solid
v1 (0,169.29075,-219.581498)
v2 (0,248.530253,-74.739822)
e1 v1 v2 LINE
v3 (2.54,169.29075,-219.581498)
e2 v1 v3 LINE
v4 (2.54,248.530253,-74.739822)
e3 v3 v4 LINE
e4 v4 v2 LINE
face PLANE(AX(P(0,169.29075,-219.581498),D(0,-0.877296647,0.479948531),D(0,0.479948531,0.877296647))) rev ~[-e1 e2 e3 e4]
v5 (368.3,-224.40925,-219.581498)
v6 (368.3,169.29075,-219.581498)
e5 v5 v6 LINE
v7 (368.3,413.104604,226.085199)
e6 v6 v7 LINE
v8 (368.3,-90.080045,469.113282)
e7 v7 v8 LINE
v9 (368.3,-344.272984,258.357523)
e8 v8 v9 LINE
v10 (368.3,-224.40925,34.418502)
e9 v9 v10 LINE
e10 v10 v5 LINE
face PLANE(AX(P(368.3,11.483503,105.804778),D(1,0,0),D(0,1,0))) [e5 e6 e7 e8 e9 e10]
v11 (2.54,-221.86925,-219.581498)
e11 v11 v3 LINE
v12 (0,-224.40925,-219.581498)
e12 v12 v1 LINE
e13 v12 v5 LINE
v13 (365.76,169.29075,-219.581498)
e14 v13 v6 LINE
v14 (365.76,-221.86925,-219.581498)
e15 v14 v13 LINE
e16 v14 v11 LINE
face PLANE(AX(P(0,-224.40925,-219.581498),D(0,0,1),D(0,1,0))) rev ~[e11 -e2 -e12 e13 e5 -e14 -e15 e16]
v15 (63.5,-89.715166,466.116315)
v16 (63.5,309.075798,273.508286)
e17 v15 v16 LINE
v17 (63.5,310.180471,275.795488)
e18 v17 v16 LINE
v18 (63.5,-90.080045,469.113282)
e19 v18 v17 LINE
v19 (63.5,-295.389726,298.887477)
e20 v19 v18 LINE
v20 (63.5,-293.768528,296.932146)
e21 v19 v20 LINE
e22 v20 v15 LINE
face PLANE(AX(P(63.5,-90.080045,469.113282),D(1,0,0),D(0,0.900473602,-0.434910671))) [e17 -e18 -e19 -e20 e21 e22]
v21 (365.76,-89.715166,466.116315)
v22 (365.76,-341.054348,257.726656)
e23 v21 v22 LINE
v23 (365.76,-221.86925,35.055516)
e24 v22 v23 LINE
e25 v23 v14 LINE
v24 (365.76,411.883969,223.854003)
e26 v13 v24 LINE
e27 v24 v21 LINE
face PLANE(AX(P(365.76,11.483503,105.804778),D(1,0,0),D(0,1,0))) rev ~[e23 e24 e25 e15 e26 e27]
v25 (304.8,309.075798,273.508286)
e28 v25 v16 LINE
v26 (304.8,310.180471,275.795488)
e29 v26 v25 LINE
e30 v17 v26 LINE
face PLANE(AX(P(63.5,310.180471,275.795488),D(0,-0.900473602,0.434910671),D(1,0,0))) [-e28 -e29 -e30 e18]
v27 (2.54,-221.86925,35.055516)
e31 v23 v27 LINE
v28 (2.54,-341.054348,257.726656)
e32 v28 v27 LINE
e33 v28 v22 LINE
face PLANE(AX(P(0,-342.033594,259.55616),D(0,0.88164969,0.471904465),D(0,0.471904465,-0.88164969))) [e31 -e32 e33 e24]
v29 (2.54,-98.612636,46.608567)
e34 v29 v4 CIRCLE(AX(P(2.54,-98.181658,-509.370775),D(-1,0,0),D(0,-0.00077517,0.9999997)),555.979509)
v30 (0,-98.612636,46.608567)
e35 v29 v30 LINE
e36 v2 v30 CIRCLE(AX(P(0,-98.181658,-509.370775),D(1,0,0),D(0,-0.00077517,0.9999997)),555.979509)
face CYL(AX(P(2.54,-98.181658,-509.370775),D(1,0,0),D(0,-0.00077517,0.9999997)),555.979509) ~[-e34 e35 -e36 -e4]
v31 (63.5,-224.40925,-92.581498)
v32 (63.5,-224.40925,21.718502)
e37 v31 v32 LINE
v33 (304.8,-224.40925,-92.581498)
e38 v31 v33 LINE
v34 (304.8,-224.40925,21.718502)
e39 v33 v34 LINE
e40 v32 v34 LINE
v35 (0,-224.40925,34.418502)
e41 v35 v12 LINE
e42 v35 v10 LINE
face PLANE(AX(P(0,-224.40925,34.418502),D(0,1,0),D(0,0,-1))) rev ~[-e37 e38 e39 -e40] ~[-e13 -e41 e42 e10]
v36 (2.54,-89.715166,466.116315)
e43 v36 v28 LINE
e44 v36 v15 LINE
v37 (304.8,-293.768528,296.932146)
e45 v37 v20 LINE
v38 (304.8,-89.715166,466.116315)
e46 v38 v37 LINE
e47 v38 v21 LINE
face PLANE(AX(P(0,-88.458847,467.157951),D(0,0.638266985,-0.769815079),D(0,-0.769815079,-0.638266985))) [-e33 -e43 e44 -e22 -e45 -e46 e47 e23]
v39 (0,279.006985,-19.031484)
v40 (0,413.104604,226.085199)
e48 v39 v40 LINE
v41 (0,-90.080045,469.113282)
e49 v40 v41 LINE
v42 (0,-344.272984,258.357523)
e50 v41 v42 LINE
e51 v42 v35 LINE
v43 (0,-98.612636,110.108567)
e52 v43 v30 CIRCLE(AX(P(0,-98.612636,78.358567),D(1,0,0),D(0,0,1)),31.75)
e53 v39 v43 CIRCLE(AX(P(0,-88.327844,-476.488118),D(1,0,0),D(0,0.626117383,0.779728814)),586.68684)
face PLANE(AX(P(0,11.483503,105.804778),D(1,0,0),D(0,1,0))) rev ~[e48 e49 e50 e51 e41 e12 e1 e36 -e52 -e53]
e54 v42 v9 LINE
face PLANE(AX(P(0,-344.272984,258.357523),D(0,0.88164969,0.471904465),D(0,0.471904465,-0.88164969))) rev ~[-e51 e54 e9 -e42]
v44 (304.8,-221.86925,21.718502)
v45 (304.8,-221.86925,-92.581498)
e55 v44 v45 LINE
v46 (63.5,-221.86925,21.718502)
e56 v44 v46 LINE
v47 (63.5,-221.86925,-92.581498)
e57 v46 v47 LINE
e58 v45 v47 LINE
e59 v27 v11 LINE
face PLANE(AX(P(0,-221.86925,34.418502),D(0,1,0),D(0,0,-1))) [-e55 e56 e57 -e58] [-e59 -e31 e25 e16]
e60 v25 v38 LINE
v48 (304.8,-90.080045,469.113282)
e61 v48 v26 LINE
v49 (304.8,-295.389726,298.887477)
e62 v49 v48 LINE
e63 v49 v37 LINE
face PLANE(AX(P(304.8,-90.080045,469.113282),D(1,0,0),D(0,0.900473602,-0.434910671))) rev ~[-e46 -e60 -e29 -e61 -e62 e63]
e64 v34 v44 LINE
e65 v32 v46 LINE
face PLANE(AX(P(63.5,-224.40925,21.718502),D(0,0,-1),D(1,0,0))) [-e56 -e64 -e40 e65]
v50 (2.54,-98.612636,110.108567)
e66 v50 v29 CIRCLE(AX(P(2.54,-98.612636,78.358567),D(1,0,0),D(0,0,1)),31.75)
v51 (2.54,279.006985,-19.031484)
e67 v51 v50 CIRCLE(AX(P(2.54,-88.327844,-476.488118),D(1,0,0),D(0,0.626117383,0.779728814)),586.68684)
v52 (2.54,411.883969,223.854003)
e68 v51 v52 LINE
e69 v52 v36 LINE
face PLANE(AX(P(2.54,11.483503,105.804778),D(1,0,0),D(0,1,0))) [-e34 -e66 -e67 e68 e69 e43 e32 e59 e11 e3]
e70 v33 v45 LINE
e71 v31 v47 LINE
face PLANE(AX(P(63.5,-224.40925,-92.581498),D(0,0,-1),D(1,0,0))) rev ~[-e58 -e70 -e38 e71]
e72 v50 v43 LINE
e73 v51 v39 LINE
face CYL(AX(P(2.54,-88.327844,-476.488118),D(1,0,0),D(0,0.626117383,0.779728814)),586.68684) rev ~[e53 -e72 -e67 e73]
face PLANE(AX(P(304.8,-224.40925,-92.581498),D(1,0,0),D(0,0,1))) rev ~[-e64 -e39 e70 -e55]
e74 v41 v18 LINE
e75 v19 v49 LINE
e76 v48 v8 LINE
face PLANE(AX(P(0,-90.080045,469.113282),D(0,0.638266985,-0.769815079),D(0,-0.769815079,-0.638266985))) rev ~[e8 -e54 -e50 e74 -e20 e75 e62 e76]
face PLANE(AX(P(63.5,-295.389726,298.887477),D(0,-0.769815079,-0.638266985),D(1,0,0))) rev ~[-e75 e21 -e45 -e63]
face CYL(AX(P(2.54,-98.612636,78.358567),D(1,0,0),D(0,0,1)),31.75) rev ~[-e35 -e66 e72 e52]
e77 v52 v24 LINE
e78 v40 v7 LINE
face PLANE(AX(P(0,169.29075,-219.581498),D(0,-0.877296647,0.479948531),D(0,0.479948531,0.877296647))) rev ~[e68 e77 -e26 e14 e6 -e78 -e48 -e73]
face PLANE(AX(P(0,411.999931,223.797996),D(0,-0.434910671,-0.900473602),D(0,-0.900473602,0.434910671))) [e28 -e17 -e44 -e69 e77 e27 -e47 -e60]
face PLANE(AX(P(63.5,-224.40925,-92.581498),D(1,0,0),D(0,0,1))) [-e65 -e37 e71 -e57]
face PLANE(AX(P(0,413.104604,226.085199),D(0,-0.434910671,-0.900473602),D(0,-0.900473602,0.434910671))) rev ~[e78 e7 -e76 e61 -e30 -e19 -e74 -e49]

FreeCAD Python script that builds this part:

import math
import FreeCAD as App
import Part
import Sketcher

V = App.Vector
Q = App.Units.Quantity


def faces_at(feature, points):
    """Names of the faces that lie closest to the given points."""
    faces = feature.Shape.Faces
    near = lambda p: min(range(len(faces)), key=lambda i: faces[i].distToShape(Part.Vertex(*p))[0])
    return sorted({f"Face{near(p) + 1}" for p in points})


def add_polygon(sketch, points):
    """Adds a closed chain of lines whose ends are joined by coincident constraints."""
    first, n = sketch.GeometryCount, len(points)
    for a, b in zip(points, points[1:] + points[:1]):
        sketch.addGeometry(Part.LineSegment(App.Vector(*a, 0), App.Vector(*b, 0)), False)
    for i in range(n):
        sketch.addConstraint(Sketcher.Constraint("Coincident", first + i, 2, first + (i + 1) % n, 1))

doc = App.newDocument("Part")
body = doc.addObject("PartDesign::Body", "Body")

# Sketch on YZ plane
sketch1 = body.newObject("Sketcher::SketchObject", "Sketch")
sketch1.AttachmentSupport = (doc.getObject("YZ_Plane"), [""])
sketch1.MapMode = "FlatFace"
add_polygon(sketch1, [(-224, -220), (169, -220), (413, 226), (-90, 469), (-344, 258), (-224, 34)])  # lines 0-5
sketch1.addConstraint([
    Sketcher.Constraint("Horizontal", 0),
    Sketcher.Constraint("Vertical", 5),
    Sketcher.Constraint("DistanceY", 5, 2, 5, 1, Q("10 in")),
    Sketcher.Constraint("Distance", 1, Q("20 in")),
    Sketcher.Constraint("Distance", 2, Q("22 in")),
    Sketcher.Constraint("Distance", 3, Q("13 in")),
    Sketcher.Constraint("Distance", 4, Q("10 in")),
    Sketcher.Constraint("DistanceX", 0, 1, 0, 2, Q("15.5 in")),
    Sketcher.Constraint("DistanceY", 0, 2, -1, 1, Q("219.581498 mm")),
    Sketcher.Constraint("DistanceY", -1, 1, 1, 2, Q("226.085199 mm")),
    Sketcher.Constraint("DistanceX", -1, 1, 0, 2, Q("169.29075 mm")),
    Sketcher.Constraint("DistanceY", -1, 1, 2, 2, Q("469.113282 mm")),
])
pad1 = body.newObject("PartDesign::Pad", "Pad")
pad1.Profile = sketch1
pad1.Length = Q("14.5 in")
doc.recompute()

thickness = body.newObject("PartDesign::Thickness", "Thickness")
thickness.Base = (pad1, faces_at(pad1, [(184.15, 291.198, 3.252), (184.15, -27.559, -219.581)]))
thickness.Value = Q("0.1 in")
thickness.Reversed = True
thickness.Join = "Intersection"

# Sketch on an angled plane
sketch2 = body.newObject("Sketcher::SketchObject", "Sketch001")
sketch2.Placement = App.Placement(V(0, 166.678364, 345.104125), App.Rotation(V(1, 0, 0), V(0, 0.900473602, -0.434910671), V(0, 0.434910671, 0.900473602), "ZXY"))
add_polygon(sketch2, [(64, 159), (64, -285), (305, -285), (305, 159)])  # lines 0-3
sketch2.addConstraint([
    Sketcher.Constraint("Vertical", 0),
    Sketcher.Constraint("Horizontal", 1),
    Sketcher.Constraint("Vertical", 2),
    Sketcher.Constraint("Horizontal", 3),
    Sketcher.Constraint("DistanceX", 1, 1, 1, 2, Q("9.5 in")),
    Sketcher.Constraint("DistanceY", 0, 2, 0, 1, Q("17.5 in")),
    Sketcher.Constraint("DistanceX", -1, 1, 1, 2, Q("12 in")),
    Sketcher.Constraint("DistanceY", 0, 2, -1, 1, Q("285.137074 mm")),
])
pocket1 = body.newObject("PartDesign::Pocket", "Pocket")
pocket1.Profile = sketch2
pocket1.Length = Q("1 in")

# Sketch on an angled plane
sketch3 = body.newObject("Sketcher::SketchObject", "Sketch002")
sketch3.Placement = App.Placement(V(0, -267.194897, 322.264297), App.Rotation(V(1, 0, 0), V(0, 0.769815079, 0.638266985), V(0, -0.638266985, 0.769815079), "ZXY"))
add_polygon(sketch3, [(64, 230), (64, -37), (305, -37), (305, 230)])  # lines 0-3
sketch3.addConstraint([
    Sketcher.Constraint("Vertical", 0),
    Sketcher.Constraint("Horizontal", 1),
    Sketcher.Constraint("Vertical", 2),
    Sketcher.Constraint("Horizontal", 3),
    Sketcher.Constraint("DistanceX", 1, 1, 1, 2, Q("9.5 in")),
    Sketcher.Constraint("DistanceY", 0, 2, 0, 1, Q("10.5 in")),
    Sketcher.Constraint("DistanceX", -1, 1, 1, 2, Q("12 in")),
    Sketcher.Constraint("DistanceY", 0, 2, -1, 1, Q("36.625457 mm")),
])
pocket2 = body.newObject("PartDesign::Pocket", "Pocket001")
pocket2.Profile = sketch3
pocket2.Length = Q("1 in")

# Sketch on XZ plane
sketch4 = body.newObject("Sketcher::SketchObject", "Sketch003")
sketch4.AttachmentSupport = (doc.getObject("XZ_Plane"), [""])
sketch4.MapMode = "FlatFace"
sketch4.AttachmentOffset = App.Placement(V(0, 0, 224.40925), App.Rotation())
add_polygon(sketch4, [(64, 22), (64, -93), (305, -93), (305, 22)])  # lines 0-3
sketch4.addConstraint([
    Sketcher.Constraint("Vertical", 0),
    Sketcher.Constraint("Horizontal", 1),
    Sketcher.Constraint("Vertical", 2),
    Sketcher.Constraint("Horizontal", 3),
    Sketcher.Constraint("DistanceX", 1, 1, 1, 2, Q("9.5 in")),
    Sketcher.Constraint("DistanceY", 0, 2, 0, 1, Q("4.5 in")),
    Sketcher.Constraint("DistanceX", -1, 1, 1, 2, Q("12 in")),
    Sketcher.Constraint("DistanceY", 0, 2, -1, 1, Q("92.581498 mm")),
])
pocket3 = body.newObject("PartDesign::Pocket", "Pocket002")
pocket3.Profile = sketch4
pocket3.Length = Q("1 in")

# Sketch on YZ plane
sketch5 = body.newObject("Sketcher::SketchObject", "Sketch004")
sketch5.AttachmentSupport = (doc.getObject("YZ_Plane"), [""])
sketch5.MapMode = "FlatFace"
sketch5.AttachmentOffset = App.Placement(V(0, 0, 0.1 * 25.4), App.Rotation())
sketch5.addGeometry([
    Part.ArcOfCircle(Part.Circle(V(-98, -509, 0), V(0, 0, 1), 556), math.radians(51), math.radians(90)),
    Part.LineSegment(V(249, -75, 0), V(279, -19, 0)),
    Part.ArcOfCircle(Part.Circle(V(-88, -476, 0), V(0, 0, 1), 587), math.radians(51), math.radians(91)),
    Part.ArcOfCircle(Part.Circle(V(-99, 78, 0), V(0, 0, 1), 32), math.radians(90), math.radians(270)),
], False)
sketch5.addConstraint([
    Sketcher.Constraint("Coincident", 0, 1, 1, 1),
    Sketcher.Constraint("Coincident", 1, 2, 2, 1),
    Sketcher.Constraint("Coincident", 2, 2, 3, 1),
    Sketcher.Constraint("Coincident", 3, 2, 0, 2),
    Sketcher.Constraint("Vertical", 3, 3, 2, 2),
    Sketcher.Constraint("Vertical", 2, 2, 3, 2),
    Sketcher.Constraint("Radius", 3, Q("1.25 in")),
    Sketcher.Constraint("Distance", 1, Q("2.5 in")),
    Sketcher.Constraint("Radius", 0, Q("555.979509 mm")),
    Sketcher.Constraint("Radius", 2, Q("586.68684 mm")),
    Sketcher.Constraint("DistanceY", 2, 3, -1, 1, Q("476.488118 mm")),
    Sketcher.Constraint("DistanceX", 3, 3, 2, 3, Q("10.284792 mm")),
    Sketcher.Constraint("DistanceX", 3, 3, 0, 3, Q("0.430978 mm")),
    Sketcher.Constraint("DistanceX", 3, 3, 1, 2, Q("377.619621 mm")),
    Sketcher.Constraint("DistanceX", 0, 3, -1, 1, Q("98.181658 mm")),
])
pocket4 = body.newObject("PartDesign::Pocket", "Pocket003")
pocket4.Profile = sketch5
pocket4.Length = Q("1 in")

doc.recompute()
